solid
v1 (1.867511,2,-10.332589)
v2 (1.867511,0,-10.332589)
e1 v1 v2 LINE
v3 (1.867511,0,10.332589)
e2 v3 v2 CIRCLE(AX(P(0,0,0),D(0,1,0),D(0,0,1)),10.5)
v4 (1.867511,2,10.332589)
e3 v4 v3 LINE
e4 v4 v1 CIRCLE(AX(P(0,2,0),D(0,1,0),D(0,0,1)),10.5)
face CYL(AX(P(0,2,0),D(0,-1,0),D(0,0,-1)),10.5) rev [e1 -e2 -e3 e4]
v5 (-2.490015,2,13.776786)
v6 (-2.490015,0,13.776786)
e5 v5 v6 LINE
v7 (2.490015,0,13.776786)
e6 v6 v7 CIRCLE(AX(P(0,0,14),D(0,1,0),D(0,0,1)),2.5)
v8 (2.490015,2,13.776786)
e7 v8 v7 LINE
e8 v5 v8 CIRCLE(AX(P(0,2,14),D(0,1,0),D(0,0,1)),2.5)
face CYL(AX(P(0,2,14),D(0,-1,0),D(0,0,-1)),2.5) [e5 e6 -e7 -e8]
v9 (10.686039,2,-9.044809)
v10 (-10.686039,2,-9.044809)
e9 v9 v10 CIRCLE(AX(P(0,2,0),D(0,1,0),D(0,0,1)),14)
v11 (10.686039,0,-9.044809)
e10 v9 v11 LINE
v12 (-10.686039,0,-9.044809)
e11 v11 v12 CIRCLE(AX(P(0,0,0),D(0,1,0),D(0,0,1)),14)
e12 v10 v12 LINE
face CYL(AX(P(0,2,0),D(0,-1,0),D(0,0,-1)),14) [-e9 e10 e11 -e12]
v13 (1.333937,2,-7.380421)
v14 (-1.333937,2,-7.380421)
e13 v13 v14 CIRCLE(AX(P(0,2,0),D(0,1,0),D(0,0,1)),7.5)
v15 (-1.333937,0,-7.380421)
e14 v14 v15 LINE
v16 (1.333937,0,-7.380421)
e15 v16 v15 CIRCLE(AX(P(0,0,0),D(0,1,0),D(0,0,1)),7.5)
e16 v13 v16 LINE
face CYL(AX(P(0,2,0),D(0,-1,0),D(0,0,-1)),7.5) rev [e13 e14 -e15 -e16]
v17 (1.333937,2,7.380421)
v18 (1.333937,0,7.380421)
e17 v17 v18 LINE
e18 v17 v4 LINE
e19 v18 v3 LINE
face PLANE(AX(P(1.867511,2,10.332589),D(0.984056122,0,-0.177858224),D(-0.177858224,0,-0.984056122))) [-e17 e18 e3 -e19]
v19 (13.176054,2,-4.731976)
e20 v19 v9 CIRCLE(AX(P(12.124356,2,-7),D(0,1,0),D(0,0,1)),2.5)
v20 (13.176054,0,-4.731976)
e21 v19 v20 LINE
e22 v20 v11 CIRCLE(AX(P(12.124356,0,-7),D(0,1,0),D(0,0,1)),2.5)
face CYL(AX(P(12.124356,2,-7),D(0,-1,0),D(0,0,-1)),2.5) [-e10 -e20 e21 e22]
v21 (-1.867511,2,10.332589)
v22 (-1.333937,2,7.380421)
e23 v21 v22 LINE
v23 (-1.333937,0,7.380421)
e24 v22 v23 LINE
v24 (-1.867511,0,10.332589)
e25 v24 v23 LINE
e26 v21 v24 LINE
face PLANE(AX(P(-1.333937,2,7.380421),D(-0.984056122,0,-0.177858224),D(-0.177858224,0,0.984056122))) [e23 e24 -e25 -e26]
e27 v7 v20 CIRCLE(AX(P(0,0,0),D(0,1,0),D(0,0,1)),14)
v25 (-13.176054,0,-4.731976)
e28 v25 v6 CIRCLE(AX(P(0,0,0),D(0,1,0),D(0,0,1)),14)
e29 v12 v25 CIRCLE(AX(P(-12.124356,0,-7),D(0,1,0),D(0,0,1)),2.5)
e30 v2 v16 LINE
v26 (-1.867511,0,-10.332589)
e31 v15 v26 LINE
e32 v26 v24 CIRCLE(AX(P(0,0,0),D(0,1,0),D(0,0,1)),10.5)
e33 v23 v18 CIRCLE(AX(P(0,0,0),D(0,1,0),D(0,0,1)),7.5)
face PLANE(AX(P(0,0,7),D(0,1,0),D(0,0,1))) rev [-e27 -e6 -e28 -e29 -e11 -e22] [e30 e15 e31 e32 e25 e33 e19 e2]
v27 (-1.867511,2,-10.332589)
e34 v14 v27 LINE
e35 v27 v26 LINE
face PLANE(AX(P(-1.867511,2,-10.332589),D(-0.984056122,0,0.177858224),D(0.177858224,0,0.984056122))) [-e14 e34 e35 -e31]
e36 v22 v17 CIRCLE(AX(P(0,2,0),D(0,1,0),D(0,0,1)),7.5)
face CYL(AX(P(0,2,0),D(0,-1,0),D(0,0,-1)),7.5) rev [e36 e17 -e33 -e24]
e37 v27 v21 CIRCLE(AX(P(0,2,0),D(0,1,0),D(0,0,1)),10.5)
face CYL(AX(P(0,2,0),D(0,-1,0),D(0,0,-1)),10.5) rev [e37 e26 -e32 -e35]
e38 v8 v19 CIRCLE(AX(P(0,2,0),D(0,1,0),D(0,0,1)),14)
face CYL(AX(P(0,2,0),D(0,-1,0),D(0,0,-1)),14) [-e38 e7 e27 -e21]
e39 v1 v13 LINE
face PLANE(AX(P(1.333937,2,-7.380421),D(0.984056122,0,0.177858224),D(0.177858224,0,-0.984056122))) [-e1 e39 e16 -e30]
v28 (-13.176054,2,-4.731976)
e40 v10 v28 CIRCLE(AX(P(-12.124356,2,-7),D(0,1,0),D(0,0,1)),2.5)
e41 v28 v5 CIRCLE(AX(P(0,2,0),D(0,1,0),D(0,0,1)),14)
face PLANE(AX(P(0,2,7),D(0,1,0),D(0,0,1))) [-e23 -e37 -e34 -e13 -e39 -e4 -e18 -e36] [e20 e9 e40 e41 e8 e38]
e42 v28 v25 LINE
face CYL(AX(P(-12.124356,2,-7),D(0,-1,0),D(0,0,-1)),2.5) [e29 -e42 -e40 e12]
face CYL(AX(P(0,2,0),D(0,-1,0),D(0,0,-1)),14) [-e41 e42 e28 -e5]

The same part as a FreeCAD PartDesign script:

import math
import FreeCAD as App
import Part
import Sketcher

doc = App.newDocument("Part")
params = doc.addObject("Spreadsheet::Sheet", "Params")
for row, (alias, value) in enumerate([
    ("sketch1_radius", "14 mm"),
    ("sketch1_radius2", "2.5 mm"),
    ("sketch1_radius3", "10.5 mm"),
    ("sketch1_radius4", "7.5 mm"),
    ("pad1_length", "2 mm"),
], start=1):
    params.set(f"A{row}", alias)
    params.set(f"B{row}", "=" + value)
    params.setAlias(f"B{row}", alias)

body = doc.addObject("PartDesign::Body", "Body")

# Sketch on XZ plane
sketch1 = doc.addObject("Sketcher::SketchObject", "Sketch")
body.addObject(sketch1)
sketch1.AttachmentSupport = (doc.XZ_Plane, [""])
sketch1.MapMode = "FlatFace"
sketch1.addGeometry(Part.ArcOfCircle(Part.Circle(App.Vector(0, 0, 0), App.Vector(0, 0, 1), 14), math.radians(100), math.radians(200)), False)
sketch1.addGeometry(Part.ArcOfCircle(Part.Circle(App.Vector(0, 14, 0), App.Vector(0, 0, 1), 2.5), math.radians(-5), math.radians(185)), False)
sketch1.addGeometry(Part.ArcOfCircle(Part.Circle(App.Vector(0, 0, 0), App.Vector(0, 0, 1), 14), math.radians(-20), math.radians(80)), False)
sketch1.addGeometry(Part.ArcOfCircle(Part.Circle(App.Vector(12.1, -7, 0), App.Vector(0, 0, 1), 2.5), math.radians(-125), math.radians(65)), False)
sketch1.addGeometry(Part.ArcOfCircle(Part.Circle(App.Vector(0, 0, 0), App.Vector(0, 0, 1), 14), math.radians(-140), math.radians(-40)), False)
sketch1.addGeometry(Part.ArcOfCircle(Part.Circle(App.Vector(-12.1, -7, 0), App.Vector(0, 0, 1), 2.5), math.radians(115), math.radians(305)), False)
sketch1.addGeometry(Part.ArcOfCircle(Part.Circle(App.Vector(0, 0, 0), App.Vector(0, 0, 1), 10.5), math.radians(-80), math.radians(80)), False)
sketch1.addGeometry(Part.LineSegment(App.Vector(1.9, 10.3, 0), App.Vector(1.3, 7.4, 0)), False)
sketch1.addGeometry(Part.ArcOfCircle(Part.Circle(App.Vector(0, 0, 0), App.Vector(0, 0, 1), 7.5), math.radians(80), math.radians(100)), False)
sketch1.addGeometry(Part.LineSegment(App.Vector(-1.3, 7.4, 0), App.Vector(-1.9, 10.3, 0)), False)
sketch1.addGeometry(Part.ArcOfCircle(Part.Circle(App.Vector(0, 0, 0), App.Vector(0, 0, 1), 10.5), math.radians(100), math.radians(260)), False)
sketch1.addGeometry(Part.LineSegment(App.Vector(-1.9, -10.3, 0), App.Vector(-1.3, -7.4, 0)), False)
sketch1.addGeometry(Part.ArcOfCircle(Part.Circle(App.Vector(0, 0, 0), App.Vector(0, 0, 1), 7.5), math.radians(-100), math.radians(-80)), False)
sketch1.addGeometry(Part.LineSegment(App.Vector(1.3, -7.4, 0), App.Vector(1.9, -10.3, 0)), False)
sketch1.addConstraint(Sketcher.Constraint("Coincident", 0, 1, 1, 2))
sketch1.addConstraint(Sketcher.Constraint("Coincident", 1, 1, 2, 2))
sketch1.addConstraint(Sketcher.Constraint("Coincident", 2, 1, 3, 2))
sketch1.addConstraint(Sketcher.Constraint("Coincident", 3, 1, 4, 2))
sketch1.addConstraint(Sketcher.Constraint("Coincident", 4, 1, 5, 2))
sketch1.addConstraint(Sketcher.Constraint("Coincident", 5, 1, 0, 2))
sketch1.addConstraint(Sketcher.Constraint("Coincident", 6, 2, 7, 1))
sketch1.addConstraint(Sketcher.Constraint("Coincident", 7, 2, 8, 1))
sketch1.addConstraint(Sketcher.Constraint("Coincident", 8, 2, 9, 1))
sketch1.addConstraint(Sketcher.Constraint("Coincident", 9, 2, 10, 1))
sketch1.addConstraint(Sketcher.Constraint("Coincident", 10, 2, 11, 1))
sketch1.addConstraint(Sketcher.Constraint("Coincident", 11, 2, 12, 1))
sketch1.addConstraint(Sketcher.Constraint("Coincident", 12, 2, 13, 1))
sketch1.addConstraint(Sketcher.Constraint("Coincident", 13, 2, 6, 1))
sketch1.addConstraint(Sketcher.Constraint("Coincident", 0, 3, -1, 1))
sketch1.addConstraint(Sketcher.Constraint("Coincident", 2, 3, -1, 1))
sketch1.addConstraint(Sketcher.Constraint("Coincident", 4, 3, -1, 1))
sketch1.addConstraint(Sketcher.Constraint("Coincident", 6, 3, -1, 1))
sketch1.addConstraint(Sketcher.Constraint("Coincident", 8, 3, -1, 1))
sketch1.addConstraint(Sketcher.Constraint("Coincident", 10, 3, -1, 1))
sketch1.addConstraint(Sketcher.Constraint("Coincident", 12, 3, -1, 1))
sketch1.addConstraint(Sketcher.Constraint("Equal", 0, 2))
sketch1.addConstraint(Sketcher.Constraint("Equal", 1, 3))
sketch1.addConstraint(Sketcher.Constraint("Equal", 2, 4))
sketch1.addConstraint(Sketcher.Constraint("Equal", 3, 5))
sketch1.addConstraint(Sketcher.Constraint("Equal", 6, 10))
sketch1.addConstraint(Sketcher.Constraint("Equal", 8, 12))
sketch1.addConstraint(Sketcher.Constraint("Symmetric", 3, 3, 5, 3, -2))
sketch1.addConstraint(Sketcher.Constraint("PointOnObject", 1, 3, -2))
sketch1.addConstraint(Sketcher.Constraint("Parallel", 7, 11))
sketch1.addConstraint(Sketcher.Constraint("Parallel", 9, 13))
sketch1.addConstraint(Sketcher.Constraint("Horizontal", 7, 2, 8, 2))
sketch1.addConstraint(Sketcher.Constraint("Horizontal", 6, 2, 9, 2))
sketch1.addConstraint(Sketcher.Constraint("Horizontal", 11, 2, 12, 2))
sketch1.addConstraint(Sketcher.Constraint("Vertical", 9, 2, 10, 2))
sketch1.addConstraint(Sketcher.Constraint("Radius", 0, 14.0))
sketch1.addConstraint(Sketcher.Constraint("Radius", 1, 2.5))
sketch1.addConstraint(Sketcher.Constraint("Radius", 6, 10.5))
sketch1.addConstraint(Sketcher.Constraint("Radius", 8, 7.5))
sketch1.addConstraint(Sketcher.Constraint("DistanceY", -1, 1, 1, 3, 14.0))
sketch1.addConstraint(Sketcher.Constraint("DistanceY", 3, 3, -1, 1, 7.0))
sketch1.addConstraint(Sketcher.Constraint("DistanceX", 3, 3, 2, 1, 1.051698))
sketch1.addConstraint(Sketcher.Constraint("DistanceX", -1, 1, 6, 2, 1.867511))
sketch1.addConstraint(Sketcher.Constraint("DistanceY", -1, 1, 7, 2, 7.380421))
sketch1.setExpression("Constraints[35]", "Params.sketch1_radius")
sketch1.setExpression("Constraints[36]", "Params.sketch1_radius2")
sketch1.setExpression("Constraints[37]", "Params.sketch1_radius3")
sketch1.setExpression("Constraints[38]", "Params.sketch1_radius4")
pad1 = doc.addObject("PartDesign::Pad", "Pad")
body.addObject(pad1)
pad1.Profile = sketch1
pad1.setExpression("Length", "Params.pad1_length")
pad1.Reversed = True

doc.recompute()
